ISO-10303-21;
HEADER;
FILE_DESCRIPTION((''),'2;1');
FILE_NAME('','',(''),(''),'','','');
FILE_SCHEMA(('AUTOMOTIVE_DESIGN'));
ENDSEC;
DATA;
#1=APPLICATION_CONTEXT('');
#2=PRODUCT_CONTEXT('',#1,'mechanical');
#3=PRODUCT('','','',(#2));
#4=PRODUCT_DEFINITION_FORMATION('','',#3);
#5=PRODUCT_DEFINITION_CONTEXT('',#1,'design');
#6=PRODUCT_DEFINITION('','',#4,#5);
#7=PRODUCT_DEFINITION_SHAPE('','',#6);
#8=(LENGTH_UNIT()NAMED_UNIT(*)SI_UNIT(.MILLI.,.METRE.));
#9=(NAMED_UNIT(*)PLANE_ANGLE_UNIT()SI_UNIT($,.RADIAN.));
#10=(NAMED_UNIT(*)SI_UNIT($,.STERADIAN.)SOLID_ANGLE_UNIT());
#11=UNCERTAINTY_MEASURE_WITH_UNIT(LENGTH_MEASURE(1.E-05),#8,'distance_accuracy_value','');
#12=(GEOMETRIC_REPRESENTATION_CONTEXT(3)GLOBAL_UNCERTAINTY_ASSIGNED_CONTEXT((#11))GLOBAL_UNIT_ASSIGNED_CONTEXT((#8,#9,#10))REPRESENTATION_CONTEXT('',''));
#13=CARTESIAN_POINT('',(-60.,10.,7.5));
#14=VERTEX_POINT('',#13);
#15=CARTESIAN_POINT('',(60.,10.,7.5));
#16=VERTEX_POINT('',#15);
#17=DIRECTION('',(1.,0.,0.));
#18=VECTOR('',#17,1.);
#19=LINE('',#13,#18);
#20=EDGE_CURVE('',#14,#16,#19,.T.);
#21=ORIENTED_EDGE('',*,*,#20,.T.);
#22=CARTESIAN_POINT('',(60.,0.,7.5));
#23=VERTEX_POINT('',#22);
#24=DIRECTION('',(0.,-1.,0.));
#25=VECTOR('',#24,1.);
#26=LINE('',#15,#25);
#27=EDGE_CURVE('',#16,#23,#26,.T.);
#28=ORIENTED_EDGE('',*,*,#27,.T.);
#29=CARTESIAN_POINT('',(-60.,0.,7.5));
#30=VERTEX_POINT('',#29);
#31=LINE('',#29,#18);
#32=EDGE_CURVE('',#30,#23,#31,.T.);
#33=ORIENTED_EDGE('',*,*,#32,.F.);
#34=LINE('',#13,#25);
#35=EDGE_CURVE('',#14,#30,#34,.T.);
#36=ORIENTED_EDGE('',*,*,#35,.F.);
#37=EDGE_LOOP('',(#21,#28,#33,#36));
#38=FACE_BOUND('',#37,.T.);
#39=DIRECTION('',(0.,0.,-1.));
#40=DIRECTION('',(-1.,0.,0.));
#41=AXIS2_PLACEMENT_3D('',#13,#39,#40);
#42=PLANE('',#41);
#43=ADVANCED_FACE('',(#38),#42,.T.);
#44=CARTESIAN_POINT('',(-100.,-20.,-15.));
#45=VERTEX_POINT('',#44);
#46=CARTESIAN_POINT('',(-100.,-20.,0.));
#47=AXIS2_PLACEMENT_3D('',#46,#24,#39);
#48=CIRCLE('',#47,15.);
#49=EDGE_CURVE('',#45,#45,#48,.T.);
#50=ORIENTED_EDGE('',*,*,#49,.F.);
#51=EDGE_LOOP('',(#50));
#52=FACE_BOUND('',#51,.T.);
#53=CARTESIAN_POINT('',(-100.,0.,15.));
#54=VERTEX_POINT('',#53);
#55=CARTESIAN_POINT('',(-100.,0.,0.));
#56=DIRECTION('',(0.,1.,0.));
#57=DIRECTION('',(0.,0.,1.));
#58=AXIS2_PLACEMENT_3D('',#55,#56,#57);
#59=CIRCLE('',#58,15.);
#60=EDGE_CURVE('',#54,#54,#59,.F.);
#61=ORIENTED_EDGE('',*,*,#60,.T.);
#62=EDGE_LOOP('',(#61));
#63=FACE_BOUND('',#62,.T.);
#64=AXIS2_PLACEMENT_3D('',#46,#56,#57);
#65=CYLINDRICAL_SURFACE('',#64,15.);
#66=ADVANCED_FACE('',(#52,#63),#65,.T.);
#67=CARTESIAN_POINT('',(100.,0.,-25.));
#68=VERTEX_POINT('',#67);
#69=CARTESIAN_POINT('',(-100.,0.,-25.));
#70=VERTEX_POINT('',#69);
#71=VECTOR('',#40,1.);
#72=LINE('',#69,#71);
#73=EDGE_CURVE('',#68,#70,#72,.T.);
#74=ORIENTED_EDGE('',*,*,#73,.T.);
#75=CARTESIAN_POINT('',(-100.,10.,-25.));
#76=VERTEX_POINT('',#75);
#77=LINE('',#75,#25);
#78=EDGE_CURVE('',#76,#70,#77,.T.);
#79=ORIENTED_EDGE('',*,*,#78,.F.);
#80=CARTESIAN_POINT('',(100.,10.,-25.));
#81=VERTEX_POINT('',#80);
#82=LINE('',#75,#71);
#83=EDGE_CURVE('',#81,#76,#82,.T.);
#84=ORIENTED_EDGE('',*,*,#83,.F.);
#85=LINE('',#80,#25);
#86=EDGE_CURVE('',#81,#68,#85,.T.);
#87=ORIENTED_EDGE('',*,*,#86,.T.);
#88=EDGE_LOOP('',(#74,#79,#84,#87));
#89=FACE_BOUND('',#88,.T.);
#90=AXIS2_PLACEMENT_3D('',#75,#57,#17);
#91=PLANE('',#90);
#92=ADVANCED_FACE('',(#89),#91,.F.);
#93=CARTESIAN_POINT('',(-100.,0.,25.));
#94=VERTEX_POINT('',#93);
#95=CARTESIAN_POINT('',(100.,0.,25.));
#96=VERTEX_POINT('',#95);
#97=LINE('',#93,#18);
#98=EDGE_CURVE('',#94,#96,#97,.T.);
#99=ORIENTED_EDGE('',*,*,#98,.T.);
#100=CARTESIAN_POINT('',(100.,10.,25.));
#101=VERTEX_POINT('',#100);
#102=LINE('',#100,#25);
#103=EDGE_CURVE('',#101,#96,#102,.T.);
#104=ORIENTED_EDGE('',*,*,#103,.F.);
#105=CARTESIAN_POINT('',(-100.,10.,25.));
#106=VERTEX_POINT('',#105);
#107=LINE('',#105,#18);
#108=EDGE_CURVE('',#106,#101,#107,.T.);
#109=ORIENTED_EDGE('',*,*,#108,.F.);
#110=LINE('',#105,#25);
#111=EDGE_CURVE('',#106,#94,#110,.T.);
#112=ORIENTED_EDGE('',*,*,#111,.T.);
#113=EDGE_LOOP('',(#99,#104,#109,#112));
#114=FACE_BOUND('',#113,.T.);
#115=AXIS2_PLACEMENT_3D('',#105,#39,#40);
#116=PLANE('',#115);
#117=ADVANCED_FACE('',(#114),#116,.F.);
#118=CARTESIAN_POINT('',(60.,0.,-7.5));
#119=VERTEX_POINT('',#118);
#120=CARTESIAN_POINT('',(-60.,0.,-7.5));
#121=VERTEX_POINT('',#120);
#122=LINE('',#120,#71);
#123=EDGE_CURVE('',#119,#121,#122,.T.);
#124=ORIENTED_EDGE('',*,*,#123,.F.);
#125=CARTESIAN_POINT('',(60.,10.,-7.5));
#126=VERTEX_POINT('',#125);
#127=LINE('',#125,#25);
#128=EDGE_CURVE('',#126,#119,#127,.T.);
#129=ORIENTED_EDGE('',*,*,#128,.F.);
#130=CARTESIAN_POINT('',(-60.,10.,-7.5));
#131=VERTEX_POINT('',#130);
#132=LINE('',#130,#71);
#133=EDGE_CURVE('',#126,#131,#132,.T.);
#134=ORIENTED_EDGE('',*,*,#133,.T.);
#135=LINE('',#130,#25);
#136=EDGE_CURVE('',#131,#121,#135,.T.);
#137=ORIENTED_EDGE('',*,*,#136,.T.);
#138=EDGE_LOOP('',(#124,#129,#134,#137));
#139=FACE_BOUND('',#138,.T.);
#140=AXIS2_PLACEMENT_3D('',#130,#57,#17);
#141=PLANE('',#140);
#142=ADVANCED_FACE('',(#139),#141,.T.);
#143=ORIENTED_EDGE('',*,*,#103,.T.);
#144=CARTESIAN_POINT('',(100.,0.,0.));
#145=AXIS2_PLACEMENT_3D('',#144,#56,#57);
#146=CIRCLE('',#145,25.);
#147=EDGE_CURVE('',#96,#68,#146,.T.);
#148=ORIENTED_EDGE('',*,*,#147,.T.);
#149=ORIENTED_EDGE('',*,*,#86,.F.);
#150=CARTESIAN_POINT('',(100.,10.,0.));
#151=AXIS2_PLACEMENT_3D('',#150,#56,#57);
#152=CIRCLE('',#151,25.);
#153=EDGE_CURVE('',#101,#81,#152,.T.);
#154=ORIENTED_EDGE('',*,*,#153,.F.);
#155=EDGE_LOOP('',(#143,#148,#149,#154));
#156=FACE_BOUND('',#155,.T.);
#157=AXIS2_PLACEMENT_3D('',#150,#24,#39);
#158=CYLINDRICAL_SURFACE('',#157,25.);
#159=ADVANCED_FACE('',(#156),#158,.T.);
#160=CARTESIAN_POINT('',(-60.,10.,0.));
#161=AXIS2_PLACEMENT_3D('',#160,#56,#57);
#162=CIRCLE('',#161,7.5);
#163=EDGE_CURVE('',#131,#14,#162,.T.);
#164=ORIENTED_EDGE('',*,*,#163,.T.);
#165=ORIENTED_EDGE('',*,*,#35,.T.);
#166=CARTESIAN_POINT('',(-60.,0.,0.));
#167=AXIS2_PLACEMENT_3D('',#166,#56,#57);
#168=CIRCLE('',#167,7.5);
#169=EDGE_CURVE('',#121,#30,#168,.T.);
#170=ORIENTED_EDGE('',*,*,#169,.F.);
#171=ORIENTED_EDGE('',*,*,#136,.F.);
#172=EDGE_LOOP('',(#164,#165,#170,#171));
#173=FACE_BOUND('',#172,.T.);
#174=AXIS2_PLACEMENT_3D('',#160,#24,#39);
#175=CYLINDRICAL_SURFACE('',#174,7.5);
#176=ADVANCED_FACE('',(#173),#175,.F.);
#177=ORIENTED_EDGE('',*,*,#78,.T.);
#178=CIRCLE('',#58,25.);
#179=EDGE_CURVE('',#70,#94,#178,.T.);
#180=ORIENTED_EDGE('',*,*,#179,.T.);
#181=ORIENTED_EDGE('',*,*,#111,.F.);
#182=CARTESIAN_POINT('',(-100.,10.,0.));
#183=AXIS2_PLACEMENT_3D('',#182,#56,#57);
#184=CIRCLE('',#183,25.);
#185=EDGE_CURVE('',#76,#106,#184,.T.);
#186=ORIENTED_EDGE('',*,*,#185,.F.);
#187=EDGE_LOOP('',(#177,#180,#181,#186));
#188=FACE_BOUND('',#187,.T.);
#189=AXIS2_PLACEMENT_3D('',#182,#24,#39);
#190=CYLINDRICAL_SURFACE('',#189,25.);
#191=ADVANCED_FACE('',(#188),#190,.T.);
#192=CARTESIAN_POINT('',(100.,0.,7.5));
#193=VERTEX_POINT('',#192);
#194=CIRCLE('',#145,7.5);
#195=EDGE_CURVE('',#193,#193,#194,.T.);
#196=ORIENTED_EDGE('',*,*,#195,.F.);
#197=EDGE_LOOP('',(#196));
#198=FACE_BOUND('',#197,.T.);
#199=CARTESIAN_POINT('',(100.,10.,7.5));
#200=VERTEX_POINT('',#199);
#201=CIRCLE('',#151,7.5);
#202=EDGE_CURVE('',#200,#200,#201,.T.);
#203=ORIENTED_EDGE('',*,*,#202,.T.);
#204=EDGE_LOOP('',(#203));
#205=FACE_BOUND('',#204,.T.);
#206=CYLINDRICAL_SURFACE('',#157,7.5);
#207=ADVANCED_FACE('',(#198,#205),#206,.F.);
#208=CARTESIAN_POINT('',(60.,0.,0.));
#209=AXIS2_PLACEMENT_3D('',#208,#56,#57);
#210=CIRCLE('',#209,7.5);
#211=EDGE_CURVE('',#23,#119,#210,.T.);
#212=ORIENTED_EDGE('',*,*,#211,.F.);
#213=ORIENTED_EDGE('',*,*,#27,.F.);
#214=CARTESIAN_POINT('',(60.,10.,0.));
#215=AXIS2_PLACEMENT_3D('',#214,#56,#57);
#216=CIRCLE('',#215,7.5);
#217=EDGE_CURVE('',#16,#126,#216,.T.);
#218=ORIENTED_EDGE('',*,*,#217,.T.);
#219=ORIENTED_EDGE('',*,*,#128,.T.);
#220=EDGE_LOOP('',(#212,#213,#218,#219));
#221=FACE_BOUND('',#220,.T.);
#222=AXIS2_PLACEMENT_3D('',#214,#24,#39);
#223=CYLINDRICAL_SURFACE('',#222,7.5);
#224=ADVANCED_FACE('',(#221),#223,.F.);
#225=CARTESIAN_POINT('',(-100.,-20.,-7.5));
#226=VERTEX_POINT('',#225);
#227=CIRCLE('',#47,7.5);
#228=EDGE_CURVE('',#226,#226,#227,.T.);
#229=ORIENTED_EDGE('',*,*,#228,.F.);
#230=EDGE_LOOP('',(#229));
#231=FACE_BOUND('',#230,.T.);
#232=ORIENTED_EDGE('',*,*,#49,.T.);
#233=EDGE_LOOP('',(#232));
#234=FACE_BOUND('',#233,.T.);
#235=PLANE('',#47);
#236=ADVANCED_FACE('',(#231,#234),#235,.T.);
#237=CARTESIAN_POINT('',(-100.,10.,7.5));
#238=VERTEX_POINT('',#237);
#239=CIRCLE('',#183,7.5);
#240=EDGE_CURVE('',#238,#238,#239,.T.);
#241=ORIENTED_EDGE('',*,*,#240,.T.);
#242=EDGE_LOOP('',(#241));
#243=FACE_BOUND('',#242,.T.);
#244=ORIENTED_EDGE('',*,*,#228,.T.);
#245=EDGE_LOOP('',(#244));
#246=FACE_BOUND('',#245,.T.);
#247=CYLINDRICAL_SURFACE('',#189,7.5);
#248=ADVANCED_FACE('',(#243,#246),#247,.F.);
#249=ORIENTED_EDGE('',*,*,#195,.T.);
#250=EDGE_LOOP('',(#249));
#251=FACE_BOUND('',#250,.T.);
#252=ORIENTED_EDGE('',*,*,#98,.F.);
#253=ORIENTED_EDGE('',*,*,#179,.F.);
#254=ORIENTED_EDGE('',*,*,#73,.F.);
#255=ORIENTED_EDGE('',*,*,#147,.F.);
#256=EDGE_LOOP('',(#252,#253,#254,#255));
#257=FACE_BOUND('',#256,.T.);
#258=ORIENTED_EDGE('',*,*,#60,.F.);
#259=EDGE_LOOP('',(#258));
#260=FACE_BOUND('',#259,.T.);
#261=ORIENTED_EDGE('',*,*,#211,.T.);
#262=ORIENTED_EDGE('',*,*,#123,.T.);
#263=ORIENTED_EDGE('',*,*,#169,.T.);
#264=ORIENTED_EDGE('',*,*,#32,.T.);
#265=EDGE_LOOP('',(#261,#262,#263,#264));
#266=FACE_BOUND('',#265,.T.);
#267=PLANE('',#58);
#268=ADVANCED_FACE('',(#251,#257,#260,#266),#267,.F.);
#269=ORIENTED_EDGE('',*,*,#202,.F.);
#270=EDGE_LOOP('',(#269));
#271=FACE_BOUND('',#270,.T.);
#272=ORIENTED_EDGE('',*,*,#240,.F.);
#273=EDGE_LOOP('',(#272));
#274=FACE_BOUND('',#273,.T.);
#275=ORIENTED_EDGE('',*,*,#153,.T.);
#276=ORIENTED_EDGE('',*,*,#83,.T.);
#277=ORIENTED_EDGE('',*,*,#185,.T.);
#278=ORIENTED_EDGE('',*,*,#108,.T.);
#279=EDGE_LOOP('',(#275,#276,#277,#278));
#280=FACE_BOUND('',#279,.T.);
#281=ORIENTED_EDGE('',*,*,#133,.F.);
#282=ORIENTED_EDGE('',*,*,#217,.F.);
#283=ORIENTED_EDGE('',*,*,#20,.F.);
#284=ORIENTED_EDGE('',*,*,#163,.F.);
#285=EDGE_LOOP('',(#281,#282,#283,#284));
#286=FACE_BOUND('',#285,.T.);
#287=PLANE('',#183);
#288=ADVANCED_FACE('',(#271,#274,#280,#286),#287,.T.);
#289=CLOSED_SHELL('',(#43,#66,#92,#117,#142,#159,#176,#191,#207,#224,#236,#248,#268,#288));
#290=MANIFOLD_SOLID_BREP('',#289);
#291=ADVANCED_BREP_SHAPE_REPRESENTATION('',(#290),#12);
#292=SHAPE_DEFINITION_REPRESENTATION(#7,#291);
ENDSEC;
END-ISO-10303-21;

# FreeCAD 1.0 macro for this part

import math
import FreeCAD as App
import Part
import Sketcher
from FreeCAD import Vector

doc = App.newDocument("Part")
params = doc.addObject("Spreadsheet::Sheet", "Params")
for row, (alias, value) in enumerate([
    ("sketch1_diameter", "15 mm"),
    ("sketch1_radius", "25 mm"),
    ("sketch1_width", "200 mm"),
    ("sketch1_width2", "120 mm"),
    ("pad1_length", "10 mm"),
    ("sketch2_diameter", "30 mm"),
    ("sketch2_diameter2", "15 mm"),
    ("pad2_length", "20 mm"),
], start=1):
    params.set(f"A{row}", alias)
    params.set(f"B{row}", "=" + value)
    params.setAlias(f"B{row}", alias)

body = doc.addObject("PartDesign::Body", "Body")

sketch1 = body.newObject("Sketcher::SketchObject", "Sketch")
sketch1.AttachmentSupport = (doc.getObject("XZ_Plane"), [""])
sketch1.MapMode = "FlatFace"
sketch1.addGeometry([
    Part.LineSegment(Vector(100, -25, 0), Vector(-100, -25, 0)),
    Part.ArcOfCircle(Part.Circle(Vector(-100, 0, 0), Vector(0, 0, 1), 25), math.radians(90), math.radians(270)),
    Part.LineSegment(Vector(-100, 25, 0), Vector(100, 25, 0)),
    Part.ArcOfCircle(Part.Circle(Vector(100, 0, 0), Vector(0, 0, 1), 25), math.radians(-90), math.radians(90)),
    Part.Circle(Vector(100, 0, 0), Vector(0, 0, 1), 8),
    Part.LineSegment(Vector(-60, -8, 0), Vector(60, -8, 0)),
    Part.ArcOfCircle(Part.Circle(Vector(60, 0, 0), Vector(0, 0, 1), 8), math.radians(-90), math.radians(90)),
    Part.LineSegment(Vector(60, 8, 0), Vector(-60, 8, 0)),
    Part.ArcOfCircle(Part.Circle(Vector(-60, 0, 0), Vector(0, 0, 1), 8), math.radians(90), math.radians(270)),
    Part.Circle(Vector(-100, 0, 0), Vector(0, 0, 1), 8),
], False)
sketch1.addConstraint([
    Sketcher.Constraint("Tangent", 0, 2, 1, 2),
    Sketcher.Constraint("Tangent", 1, 1, 2, 1),
    Sketcher.Constraint("Tangent", 2, 2, 3, 2),
    Sketcher.Constraint("Tangent", 3, 1, 0, 1),
    Sketcher.Constraint("Tangent", 5, 2, 6, 1),
    Sketcher.Constraint("Tangent", 6, 2, 7, 1),
    Sketcher.Constraint("Tangent", 7, 2, 8, 1),
    Sketcher.Constraint("Tangent", 8, 2, 5, 1),
    Sketcher.Constraint("Horizontal", 0),
    Sketcher.Constraint("Horizontal", 2),
    Sketcher.Constraint("Horizontal", 5),
    Sketcher.Constraint("Horizontal", 7),
    Sketcher.Constraint("Coincident", 4, 3, 3, 3),
    Sketcher.Constraint("Coincident", 9, 3, 1, 3),
    Sketcher.Constraint("Equal", 4, 6),
    Sketcher.Constraint("Equal", 8, 9),
    Sketcher.Constraint("Symmetric", 1, 3, 3, 3, -1, 1),
    Sketcher.Constraint("Symmetric", 6, 3, 8, 3, -1, 1),
    Sketcher.Constraint("Diameter", 4, 15.0),
    Sketcher.Constraint("Radius", 1, 25.0),
    Sketcher.Constraint("DistanceX", 0, 2, 0, 1, 200.0),
    Sketcher.Constraint("DistanceX", 5, 1, 5, 2, 120.0),
])
sketch1.setExpression("Constraints[18]", "Params.sketch1_diameter")
sketch1.setExpression("Constraints[19]", "Params.sketch1_radius")
sketch1.setExpression("Constraints[20]", "Params.sketch1_width")
sketch1.setExpression("Constraints[21]", "Params.sketch1_width2")
pad1 = body.newObject("PartDesign::Pad", "Pad")
pad1.Profile = sketch1
pad1.setExpression("Length", "Params.pad1_length")
pad1.Reversed = True

sketch2 = body.newObject("Sketcher::SketchObject", "Sketch001")
sketch2.AttachmentSupport = (doc.getObject("XZ_Plane"), [""])
sketch2.MapMode = "FlatFace"
sketch2.AttachmentOffset = App.Placement(Vector(0, 0, 20), App.Rotation())
sketch2.addGeometry([
    Part.Circle(Vector(-100, 0, 0), Vector(0, 0, 1), 15),
    Part.Circle(Vector(-100, 0, 0), Vector(0, 0, 1), 8),
], False)
sketch2.addConstraint([
    Sketcher.Constraint("Coincident", 1, 3, 0, 3),
    Sketcher.Constraint("PointOnObject", 0, 3, -1),
    Sketcher.Constraint("Diameter", 0, 30.0),
    Sketcher.Constraint("Diameter", 1, 15.0),
    Sketcher.Constraint("DistanceX", 0, 3, -1, 1, 100.0),
])
sketch2.setExpression("Constraints[2]", "Params.sketch2_diameter")
sketch2.setExpression("Constraints[3]", "Params.sketch2_diameter2")
pad2 = body.newObject("PartDesign::Pad", "Pad001")
pad2.Profile = sketch2
pad2.setExpression("Length", "Params.pad2_length")
pad2.Reversed = True

doc.recompute()
